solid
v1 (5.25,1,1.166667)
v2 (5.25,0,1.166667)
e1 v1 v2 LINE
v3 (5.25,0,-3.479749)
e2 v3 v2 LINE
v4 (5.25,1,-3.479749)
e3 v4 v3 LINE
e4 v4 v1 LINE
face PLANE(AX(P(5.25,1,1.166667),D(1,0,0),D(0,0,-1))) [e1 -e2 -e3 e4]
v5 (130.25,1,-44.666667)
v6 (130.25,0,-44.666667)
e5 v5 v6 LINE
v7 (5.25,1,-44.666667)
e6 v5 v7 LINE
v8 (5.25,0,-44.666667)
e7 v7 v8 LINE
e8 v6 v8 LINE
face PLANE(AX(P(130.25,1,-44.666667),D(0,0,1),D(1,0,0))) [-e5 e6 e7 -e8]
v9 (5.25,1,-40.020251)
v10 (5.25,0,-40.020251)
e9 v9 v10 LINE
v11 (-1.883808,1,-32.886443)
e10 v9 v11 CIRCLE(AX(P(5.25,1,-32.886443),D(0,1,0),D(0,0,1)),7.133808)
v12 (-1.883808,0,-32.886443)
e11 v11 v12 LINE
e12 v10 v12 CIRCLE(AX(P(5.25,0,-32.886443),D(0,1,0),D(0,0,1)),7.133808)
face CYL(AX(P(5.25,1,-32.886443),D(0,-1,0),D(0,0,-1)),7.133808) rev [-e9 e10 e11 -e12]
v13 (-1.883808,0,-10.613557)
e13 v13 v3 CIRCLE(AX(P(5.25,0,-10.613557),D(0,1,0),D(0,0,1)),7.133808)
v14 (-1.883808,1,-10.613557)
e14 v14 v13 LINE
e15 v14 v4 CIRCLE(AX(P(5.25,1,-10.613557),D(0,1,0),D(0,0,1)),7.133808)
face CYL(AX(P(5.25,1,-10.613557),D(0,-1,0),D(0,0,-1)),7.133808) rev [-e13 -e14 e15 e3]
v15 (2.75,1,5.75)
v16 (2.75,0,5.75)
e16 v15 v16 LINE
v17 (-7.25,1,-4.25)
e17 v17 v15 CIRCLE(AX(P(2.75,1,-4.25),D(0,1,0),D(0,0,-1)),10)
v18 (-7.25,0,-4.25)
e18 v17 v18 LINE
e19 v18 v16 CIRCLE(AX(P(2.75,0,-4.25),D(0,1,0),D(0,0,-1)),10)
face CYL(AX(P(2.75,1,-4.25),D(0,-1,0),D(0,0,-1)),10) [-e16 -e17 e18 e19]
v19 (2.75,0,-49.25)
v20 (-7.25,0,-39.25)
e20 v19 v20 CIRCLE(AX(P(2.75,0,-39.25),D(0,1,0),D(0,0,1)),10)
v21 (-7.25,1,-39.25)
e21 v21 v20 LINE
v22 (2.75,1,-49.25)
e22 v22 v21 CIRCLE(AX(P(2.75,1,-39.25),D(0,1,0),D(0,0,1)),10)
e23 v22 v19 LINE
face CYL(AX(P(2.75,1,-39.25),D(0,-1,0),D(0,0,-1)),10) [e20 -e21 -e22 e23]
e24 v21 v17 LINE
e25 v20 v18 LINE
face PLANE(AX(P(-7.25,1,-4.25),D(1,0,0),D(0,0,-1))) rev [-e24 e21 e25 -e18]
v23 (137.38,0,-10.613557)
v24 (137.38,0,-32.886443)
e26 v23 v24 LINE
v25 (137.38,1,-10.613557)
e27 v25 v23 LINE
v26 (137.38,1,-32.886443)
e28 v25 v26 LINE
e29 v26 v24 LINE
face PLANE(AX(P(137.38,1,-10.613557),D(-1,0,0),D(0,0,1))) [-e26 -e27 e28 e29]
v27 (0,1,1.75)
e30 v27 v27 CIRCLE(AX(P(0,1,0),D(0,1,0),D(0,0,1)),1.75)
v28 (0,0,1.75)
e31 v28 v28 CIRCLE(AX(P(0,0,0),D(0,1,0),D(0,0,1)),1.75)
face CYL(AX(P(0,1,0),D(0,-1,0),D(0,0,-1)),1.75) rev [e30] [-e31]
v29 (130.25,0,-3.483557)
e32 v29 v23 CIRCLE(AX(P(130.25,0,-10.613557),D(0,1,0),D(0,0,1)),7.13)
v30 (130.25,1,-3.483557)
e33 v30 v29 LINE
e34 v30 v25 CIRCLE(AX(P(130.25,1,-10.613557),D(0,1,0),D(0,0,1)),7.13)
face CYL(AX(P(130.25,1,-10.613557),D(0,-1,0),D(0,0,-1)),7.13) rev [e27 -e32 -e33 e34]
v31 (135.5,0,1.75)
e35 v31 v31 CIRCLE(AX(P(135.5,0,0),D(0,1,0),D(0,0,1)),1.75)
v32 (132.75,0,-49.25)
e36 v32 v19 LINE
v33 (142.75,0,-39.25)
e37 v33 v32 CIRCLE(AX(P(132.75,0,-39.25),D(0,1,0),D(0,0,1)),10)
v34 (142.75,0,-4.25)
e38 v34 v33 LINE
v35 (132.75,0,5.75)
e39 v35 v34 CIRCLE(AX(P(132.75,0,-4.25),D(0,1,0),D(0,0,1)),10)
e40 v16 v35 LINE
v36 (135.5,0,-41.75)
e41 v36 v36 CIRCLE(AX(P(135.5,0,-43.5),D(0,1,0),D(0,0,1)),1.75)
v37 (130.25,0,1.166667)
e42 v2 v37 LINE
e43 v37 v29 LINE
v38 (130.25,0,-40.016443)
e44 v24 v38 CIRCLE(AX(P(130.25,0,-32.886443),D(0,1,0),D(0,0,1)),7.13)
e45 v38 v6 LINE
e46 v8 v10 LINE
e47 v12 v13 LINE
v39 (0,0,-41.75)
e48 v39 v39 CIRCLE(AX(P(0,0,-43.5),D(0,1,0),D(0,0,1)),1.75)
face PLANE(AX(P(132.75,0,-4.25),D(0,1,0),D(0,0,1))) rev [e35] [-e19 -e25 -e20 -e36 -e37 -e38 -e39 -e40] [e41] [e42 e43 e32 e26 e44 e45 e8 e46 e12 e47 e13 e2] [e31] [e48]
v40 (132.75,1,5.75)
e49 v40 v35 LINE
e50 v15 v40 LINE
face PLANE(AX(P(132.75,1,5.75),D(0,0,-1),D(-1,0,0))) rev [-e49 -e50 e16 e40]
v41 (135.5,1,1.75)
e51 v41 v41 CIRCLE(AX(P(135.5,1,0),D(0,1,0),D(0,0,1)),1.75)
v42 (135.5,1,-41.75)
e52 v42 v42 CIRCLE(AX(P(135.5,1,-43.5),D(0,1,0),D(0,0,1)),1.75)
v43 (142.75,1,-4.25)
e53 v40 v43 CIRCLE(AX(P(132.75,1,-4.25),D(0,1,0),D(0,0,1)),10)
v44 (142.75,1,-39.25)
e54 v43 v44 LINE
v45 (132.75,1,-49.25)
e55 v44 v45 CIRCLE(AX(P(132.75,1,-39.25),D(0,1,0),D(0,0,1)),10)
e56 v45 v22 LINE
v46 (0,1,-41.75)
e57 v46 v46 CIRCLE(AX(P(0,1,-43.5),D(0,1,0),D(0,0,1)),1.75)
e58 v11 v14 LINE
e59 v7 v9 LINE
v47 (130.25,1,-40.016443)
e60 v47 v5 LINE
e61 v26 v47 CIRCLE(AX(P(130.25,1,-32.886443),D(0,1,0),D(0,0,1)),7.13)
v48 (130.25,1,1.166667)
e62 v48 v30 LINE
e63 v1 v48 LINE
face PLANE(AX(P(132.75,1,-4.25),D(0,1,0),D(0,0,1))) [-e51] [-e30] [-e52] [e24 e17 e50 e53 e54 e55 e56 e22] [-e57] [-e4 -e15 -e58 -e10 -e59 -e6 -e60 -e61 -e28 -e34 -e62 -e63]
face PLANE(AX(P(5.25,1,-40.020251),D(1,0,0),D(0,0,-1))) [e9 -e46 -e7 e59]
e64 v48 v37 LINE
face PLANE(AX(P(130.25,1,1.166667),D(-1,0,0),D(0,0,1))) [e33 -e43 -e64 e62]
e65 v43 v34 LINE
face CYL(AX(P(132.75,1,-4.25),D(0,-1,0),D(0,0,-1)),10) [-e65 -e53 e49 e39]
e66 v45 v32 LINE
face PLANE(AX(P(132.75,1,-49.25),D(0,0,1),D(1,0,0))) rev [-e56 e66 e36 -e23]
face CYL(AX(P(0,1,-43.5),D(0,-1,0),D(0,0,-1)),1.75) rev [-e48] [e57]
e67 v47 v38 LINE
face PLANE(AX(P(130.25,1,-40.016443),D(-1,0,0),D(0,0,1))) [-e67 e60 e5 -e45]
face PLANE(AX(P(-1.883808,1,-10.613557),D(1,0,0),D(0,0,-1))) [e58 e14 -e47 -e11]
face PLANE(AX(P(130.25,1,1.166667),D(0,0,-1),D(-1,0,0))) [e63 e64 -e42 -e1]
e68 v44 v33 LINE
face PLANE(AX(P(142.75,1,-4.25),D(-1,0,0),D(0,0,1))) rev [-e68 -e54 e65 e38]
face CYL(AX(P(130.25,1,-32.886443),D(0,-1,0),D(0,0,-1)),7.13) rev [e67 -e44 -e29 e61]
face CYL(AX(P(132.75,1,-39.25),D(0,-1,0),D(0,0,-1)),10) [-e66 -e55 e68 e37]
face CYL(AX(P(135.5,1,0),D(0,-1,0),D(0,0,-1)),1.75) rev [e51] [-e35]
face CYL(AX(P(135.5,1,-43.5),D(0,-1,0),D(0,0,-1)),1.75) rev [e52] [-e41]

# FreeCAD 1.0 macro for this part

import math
import FreeCAD as App
import Part
import Sketcher
from FreeCAD import Vector

doc = App.newDocument("Part")
body = doc.addObject("PartDesign::Body", "Body")

# Sketch on XZ plane
sketch1 = doc.addObject("Sketcher::SketchObject", "Sketch")
body.addObject(sketch1)
sketch1.AttachmentSupport = (doc.XZ_Plane, [""])
sketch1.MapMode = "FlatFace"
sketch1.addGeometry([
    Part.LineSegment(Vector(2.75, 5.75, 0), Vector(132.75, 5.75, 0)),  # 0
    Part.ArcOfCircle(Part.Circle(Vector(132.75, -4.25, 0), Vector(0, 0, 1), 10), math.radians(0), math.radians(90)),  # 1
    Part.LineSegment(Vector(142.75, -4.25, 0), Vector(142.75, -39.25, 0)),  # 2
    Part.ArcOfCircle(Part.Circle(Vector(132.75, -39.25, 0), Vector(0, 0, 1), 10), math.radians(-90), math.radians(0)),  # 3
    Part.LineSegment(Vector(132.75, -49.25, 0), Vector(2.75, -49.25, 0)),  # 4
    Part.ArcOfCircle(Part.Circle(Vector(2.75, -39.25, 0), Vector(0, 0, 1), 10), math.radians(180), math.radians(270)),  # 5
    Part.LineSegment(Vector(-7.25, -39.25, 0), Vector(-7.25, -4.25, 0)),  # 6
    Part.ArcOfCircle(Part.Circle(Vector(2.75, -4.25, 0), Vector(0, 0, 1), 10), math.radians(90), math.radians(180)),  # 7
    Part.Circle(Vector(135.5, 0, 0), Vector(0, 0, 1), 1.75),  # 8
    Part.Circle(Vector(0, 0, 0), Vector(0, 0, 1), 1.75),  # 9
    Part.Circle(Vector(135.5, -43.5, 0), Vector(0, 0, 1), 1.75),  # 10
    Part.ArcOfCircle(Part.Circle(Vector(130.25, -32.886443, 0), Vector(0, 0, 1), 7.13), math.radians(-90), math.radians(0)),  # 11
    Part.LineSegment(Vector(137.38, -32.886443, 0), Vector(137.38, -10.613557, 0)),  # 12
    Part.ArcOfCircle(Part.Circle(Vector(130.25, -10.613557, 0), Vector(0, 0, 1), 7.13), math.radians(0), math.radians(90)),  # 13
    Part.LineSegment(Vector(130.25, -3.483557, 0), Vector(130.25, 1.166667, 0)),  # 14
    Part.LineSegment(Vector(130.25, 1.166667, 0), Vector(5.25, 1.166667, 0)),  # 15
    Part.LineSegment(Vector(5.25, 1.166667, 0), Vector(5.25, -3.479749, 0)),  # 16
    Part.ArcOfCircle(Part.Circle(Vector(5.25, -10.613557, 0), Vector(0, 0, 1), 7.133808), math.radians(90), math.radians(180)),  # 17
    Part.LineSegment(Vector(-1.883808, -10.613557, 0), Vector(-1.883808, -32.886443, 0)),  # 18
    Part.ArcOfCircle(Part.Circle(Vector(5.25, -32.886443, 0), Vector(0, 0, 1), 7.133808), math.radians(180), math.radians(270)),  # 19
    Part.LineSegment(Vector(5.25, -40.020251, 0), Vector(5.25, -44.666667, 0)),  # 20
    Part.LineSegment(Vector(5.25, -44.666667, 0), Vector(130.25, -44.666667, 0)),  # 21
    Part.LineSegment(Vector(130.25, -44.666667, 0), Vector(130.25, -40.016443, 0)),  # 22
    Part.Circle(Vector(0, -43.5, 0), Vector(0, 0, 1), 1.75),  # 23
], False)
sketch1.addConstraint([
    Sketcher.Constraint("Tangent", 0, 2, 1, 2),
    Sketcher.Constraint("Tangent", 1, 1, 2, 1),
    Sketcher.Constraint("Tangent", 2, 2, 3, 2),
    Sketcher.Constraint("Tangent", 3, 1, 4, 1),
    Sketcher.Constraint("Tangent", 4, 2, 5, 2),
    Sketcher.Constraint("Tangent", 5, 1, 6, 1),
    Sketcher.Constraint("Tangent", 6, 2, 7, 2),
    Sketcher.Constraint("Tangent", 7, 1, 0, 1),
    Sketcher.Constraint("Tangent", 11, 2, 12, 1),
    Sketcher.Constraint("Tangent", 12, 2, 13, 1),
    Sketcher.Constraint("Coincident", 13, 2, 14, 1),
    Sketcher.Constraint("Coincident", 14, 2, 15, 1),
    Sketcher.Constraint("Coincident", 15, 2, 16, 1),
    Sketcher.Constraint("Coincident", 16, 2, 17, 1),
    Sketcher.Constraint("Tangent", 17, 2, 18, 1),
    Sketcher.Constraint("Tangent", 18, 2, 19, 1),
    Sketcher.Constraint("Coincident", 19, 2, 20, 1),
    Sketcher.Constraint("Coincident", 20, 2, 21, 1),
    Sketcher.Constraint("Coincident", 21, 2, 22, 1),
    Sketcher.Constraint("Coincident", 22, 2, 11, 1),
    Sketcher.Constraint("Horizontal", 0),
    Sketcher.Constraint("Vertical", 2),
    Sketcher.Constraint("Horizontal", 4),
    Sketcher.Constraint("Vertical", 6),
    Sketcher.Constraint("Vertical", 12),
    Sketcher.Constraint("Vertical", 14),
    Sketcher.Constraint("Horizontal", 15),
    Sketcher.Constraint("Vertical", 16),
    Sketcher.Constraint("Vertical", 18),
    Sketcher.Constraint("Vertical", 20),
    Sketcher.Constraint("Horizontal", 21),
    Sketcher.Constraint("Vertical", 22),
    Sketcher.Constraint("Coincident", 9, 3, -1, 1),
    Sketcher.Constraint("Equal", 1, 3),
    Sketcher.Constraint("Equal", 3, 5),
    Sketcher.Constraint("Equal", 5, 7),
    Sketcher.Constraint("Equal", 8, 9),
    Sketcher.Constraint("Equal", 9, 10),
    Sketcher.Constraint("Equal", 11, 13),
    Sketcher.Constraint("Equal", 17, 19),
    Sketcher.Constraint("Equal", 10, 23),
    Sketcher.Constraint("PointOnObject", 8, 3, -1),
    Sketcher.Constraint("PointOnObject", 23, 3, -2),
    Sketcher.Constraint("Horizontal", 13, 3, 17, 3),
    Sketcher.Constraint("Horizontal", 11, 3, 19, 3),
    Sketcher.Constraint("Horizontal", 10, 3, 23, 3),
    Sketcher.Constraint("Vertical", 8, 3, 10, 3),
    Sketcher.Constraint("Vertical", 11, 3, 13, 2),
    Sketcher.Constraint("Vertical", 19, 3, 15, 2),
    Sketcher.Constraint("Vertical", 16, 2, 19, 2),
    Sketcher.Constraint("Vertical", 14, 2, 21, 2),
    Sketcher.Constraint("Equal", 16, 20),
    Sketcher.Constraint("Radius", 1, 10.0),
    Sketcher.Constraint("Diameter", 8, 3.5),
    Sketcher.Constraint("DistanceX", 0, 1, 0, 2, 130.0),
    Sketcher.Constraint("DistanceX", 15, 2, 15, 1, 125.0),
    Sketcher.Constraint("DistanceY", 2, 2, 2, 1, 35.0),
    Sketcher.Constraint("Radius", 11, 7.13),
    Sketcher.Constraint("DistanceX", -1, 1, 8, 3, 135.5),
    Sketcher.Constraint("DistanceY", 10, 3, -1, 1, 43.5),
    Sketcher.Constraint("DistanceX", 11, 3, 3, 3, 2.5),
    Sketcher.Constraint("DistanceX", -1, 1, 1, 3, 132.75),
    Sketcher.Constraint("DistanceY", 1, 3, -1, 1, 4.25),
    Sketcher.Constraint("Radius", 17, 7.133808),
    Sketcher.Constraint("DistanceY", 12, 1, 12, 2, 22.272887),
    Sketcher.Constraint("DistanceY", 14, 1, 14, 2, 4.650223),
    Sketcher.Constraint("DistanceY", 16, 2, -1, 1, 3.479749),
])
pad1 = doc.addObject("PartDesign::Pad", "Pad")
body.addObject(pad1)
pad1.Profile = sketch1
pad1.Length = 1
pad1.Reversed = True

doc.recompute()
